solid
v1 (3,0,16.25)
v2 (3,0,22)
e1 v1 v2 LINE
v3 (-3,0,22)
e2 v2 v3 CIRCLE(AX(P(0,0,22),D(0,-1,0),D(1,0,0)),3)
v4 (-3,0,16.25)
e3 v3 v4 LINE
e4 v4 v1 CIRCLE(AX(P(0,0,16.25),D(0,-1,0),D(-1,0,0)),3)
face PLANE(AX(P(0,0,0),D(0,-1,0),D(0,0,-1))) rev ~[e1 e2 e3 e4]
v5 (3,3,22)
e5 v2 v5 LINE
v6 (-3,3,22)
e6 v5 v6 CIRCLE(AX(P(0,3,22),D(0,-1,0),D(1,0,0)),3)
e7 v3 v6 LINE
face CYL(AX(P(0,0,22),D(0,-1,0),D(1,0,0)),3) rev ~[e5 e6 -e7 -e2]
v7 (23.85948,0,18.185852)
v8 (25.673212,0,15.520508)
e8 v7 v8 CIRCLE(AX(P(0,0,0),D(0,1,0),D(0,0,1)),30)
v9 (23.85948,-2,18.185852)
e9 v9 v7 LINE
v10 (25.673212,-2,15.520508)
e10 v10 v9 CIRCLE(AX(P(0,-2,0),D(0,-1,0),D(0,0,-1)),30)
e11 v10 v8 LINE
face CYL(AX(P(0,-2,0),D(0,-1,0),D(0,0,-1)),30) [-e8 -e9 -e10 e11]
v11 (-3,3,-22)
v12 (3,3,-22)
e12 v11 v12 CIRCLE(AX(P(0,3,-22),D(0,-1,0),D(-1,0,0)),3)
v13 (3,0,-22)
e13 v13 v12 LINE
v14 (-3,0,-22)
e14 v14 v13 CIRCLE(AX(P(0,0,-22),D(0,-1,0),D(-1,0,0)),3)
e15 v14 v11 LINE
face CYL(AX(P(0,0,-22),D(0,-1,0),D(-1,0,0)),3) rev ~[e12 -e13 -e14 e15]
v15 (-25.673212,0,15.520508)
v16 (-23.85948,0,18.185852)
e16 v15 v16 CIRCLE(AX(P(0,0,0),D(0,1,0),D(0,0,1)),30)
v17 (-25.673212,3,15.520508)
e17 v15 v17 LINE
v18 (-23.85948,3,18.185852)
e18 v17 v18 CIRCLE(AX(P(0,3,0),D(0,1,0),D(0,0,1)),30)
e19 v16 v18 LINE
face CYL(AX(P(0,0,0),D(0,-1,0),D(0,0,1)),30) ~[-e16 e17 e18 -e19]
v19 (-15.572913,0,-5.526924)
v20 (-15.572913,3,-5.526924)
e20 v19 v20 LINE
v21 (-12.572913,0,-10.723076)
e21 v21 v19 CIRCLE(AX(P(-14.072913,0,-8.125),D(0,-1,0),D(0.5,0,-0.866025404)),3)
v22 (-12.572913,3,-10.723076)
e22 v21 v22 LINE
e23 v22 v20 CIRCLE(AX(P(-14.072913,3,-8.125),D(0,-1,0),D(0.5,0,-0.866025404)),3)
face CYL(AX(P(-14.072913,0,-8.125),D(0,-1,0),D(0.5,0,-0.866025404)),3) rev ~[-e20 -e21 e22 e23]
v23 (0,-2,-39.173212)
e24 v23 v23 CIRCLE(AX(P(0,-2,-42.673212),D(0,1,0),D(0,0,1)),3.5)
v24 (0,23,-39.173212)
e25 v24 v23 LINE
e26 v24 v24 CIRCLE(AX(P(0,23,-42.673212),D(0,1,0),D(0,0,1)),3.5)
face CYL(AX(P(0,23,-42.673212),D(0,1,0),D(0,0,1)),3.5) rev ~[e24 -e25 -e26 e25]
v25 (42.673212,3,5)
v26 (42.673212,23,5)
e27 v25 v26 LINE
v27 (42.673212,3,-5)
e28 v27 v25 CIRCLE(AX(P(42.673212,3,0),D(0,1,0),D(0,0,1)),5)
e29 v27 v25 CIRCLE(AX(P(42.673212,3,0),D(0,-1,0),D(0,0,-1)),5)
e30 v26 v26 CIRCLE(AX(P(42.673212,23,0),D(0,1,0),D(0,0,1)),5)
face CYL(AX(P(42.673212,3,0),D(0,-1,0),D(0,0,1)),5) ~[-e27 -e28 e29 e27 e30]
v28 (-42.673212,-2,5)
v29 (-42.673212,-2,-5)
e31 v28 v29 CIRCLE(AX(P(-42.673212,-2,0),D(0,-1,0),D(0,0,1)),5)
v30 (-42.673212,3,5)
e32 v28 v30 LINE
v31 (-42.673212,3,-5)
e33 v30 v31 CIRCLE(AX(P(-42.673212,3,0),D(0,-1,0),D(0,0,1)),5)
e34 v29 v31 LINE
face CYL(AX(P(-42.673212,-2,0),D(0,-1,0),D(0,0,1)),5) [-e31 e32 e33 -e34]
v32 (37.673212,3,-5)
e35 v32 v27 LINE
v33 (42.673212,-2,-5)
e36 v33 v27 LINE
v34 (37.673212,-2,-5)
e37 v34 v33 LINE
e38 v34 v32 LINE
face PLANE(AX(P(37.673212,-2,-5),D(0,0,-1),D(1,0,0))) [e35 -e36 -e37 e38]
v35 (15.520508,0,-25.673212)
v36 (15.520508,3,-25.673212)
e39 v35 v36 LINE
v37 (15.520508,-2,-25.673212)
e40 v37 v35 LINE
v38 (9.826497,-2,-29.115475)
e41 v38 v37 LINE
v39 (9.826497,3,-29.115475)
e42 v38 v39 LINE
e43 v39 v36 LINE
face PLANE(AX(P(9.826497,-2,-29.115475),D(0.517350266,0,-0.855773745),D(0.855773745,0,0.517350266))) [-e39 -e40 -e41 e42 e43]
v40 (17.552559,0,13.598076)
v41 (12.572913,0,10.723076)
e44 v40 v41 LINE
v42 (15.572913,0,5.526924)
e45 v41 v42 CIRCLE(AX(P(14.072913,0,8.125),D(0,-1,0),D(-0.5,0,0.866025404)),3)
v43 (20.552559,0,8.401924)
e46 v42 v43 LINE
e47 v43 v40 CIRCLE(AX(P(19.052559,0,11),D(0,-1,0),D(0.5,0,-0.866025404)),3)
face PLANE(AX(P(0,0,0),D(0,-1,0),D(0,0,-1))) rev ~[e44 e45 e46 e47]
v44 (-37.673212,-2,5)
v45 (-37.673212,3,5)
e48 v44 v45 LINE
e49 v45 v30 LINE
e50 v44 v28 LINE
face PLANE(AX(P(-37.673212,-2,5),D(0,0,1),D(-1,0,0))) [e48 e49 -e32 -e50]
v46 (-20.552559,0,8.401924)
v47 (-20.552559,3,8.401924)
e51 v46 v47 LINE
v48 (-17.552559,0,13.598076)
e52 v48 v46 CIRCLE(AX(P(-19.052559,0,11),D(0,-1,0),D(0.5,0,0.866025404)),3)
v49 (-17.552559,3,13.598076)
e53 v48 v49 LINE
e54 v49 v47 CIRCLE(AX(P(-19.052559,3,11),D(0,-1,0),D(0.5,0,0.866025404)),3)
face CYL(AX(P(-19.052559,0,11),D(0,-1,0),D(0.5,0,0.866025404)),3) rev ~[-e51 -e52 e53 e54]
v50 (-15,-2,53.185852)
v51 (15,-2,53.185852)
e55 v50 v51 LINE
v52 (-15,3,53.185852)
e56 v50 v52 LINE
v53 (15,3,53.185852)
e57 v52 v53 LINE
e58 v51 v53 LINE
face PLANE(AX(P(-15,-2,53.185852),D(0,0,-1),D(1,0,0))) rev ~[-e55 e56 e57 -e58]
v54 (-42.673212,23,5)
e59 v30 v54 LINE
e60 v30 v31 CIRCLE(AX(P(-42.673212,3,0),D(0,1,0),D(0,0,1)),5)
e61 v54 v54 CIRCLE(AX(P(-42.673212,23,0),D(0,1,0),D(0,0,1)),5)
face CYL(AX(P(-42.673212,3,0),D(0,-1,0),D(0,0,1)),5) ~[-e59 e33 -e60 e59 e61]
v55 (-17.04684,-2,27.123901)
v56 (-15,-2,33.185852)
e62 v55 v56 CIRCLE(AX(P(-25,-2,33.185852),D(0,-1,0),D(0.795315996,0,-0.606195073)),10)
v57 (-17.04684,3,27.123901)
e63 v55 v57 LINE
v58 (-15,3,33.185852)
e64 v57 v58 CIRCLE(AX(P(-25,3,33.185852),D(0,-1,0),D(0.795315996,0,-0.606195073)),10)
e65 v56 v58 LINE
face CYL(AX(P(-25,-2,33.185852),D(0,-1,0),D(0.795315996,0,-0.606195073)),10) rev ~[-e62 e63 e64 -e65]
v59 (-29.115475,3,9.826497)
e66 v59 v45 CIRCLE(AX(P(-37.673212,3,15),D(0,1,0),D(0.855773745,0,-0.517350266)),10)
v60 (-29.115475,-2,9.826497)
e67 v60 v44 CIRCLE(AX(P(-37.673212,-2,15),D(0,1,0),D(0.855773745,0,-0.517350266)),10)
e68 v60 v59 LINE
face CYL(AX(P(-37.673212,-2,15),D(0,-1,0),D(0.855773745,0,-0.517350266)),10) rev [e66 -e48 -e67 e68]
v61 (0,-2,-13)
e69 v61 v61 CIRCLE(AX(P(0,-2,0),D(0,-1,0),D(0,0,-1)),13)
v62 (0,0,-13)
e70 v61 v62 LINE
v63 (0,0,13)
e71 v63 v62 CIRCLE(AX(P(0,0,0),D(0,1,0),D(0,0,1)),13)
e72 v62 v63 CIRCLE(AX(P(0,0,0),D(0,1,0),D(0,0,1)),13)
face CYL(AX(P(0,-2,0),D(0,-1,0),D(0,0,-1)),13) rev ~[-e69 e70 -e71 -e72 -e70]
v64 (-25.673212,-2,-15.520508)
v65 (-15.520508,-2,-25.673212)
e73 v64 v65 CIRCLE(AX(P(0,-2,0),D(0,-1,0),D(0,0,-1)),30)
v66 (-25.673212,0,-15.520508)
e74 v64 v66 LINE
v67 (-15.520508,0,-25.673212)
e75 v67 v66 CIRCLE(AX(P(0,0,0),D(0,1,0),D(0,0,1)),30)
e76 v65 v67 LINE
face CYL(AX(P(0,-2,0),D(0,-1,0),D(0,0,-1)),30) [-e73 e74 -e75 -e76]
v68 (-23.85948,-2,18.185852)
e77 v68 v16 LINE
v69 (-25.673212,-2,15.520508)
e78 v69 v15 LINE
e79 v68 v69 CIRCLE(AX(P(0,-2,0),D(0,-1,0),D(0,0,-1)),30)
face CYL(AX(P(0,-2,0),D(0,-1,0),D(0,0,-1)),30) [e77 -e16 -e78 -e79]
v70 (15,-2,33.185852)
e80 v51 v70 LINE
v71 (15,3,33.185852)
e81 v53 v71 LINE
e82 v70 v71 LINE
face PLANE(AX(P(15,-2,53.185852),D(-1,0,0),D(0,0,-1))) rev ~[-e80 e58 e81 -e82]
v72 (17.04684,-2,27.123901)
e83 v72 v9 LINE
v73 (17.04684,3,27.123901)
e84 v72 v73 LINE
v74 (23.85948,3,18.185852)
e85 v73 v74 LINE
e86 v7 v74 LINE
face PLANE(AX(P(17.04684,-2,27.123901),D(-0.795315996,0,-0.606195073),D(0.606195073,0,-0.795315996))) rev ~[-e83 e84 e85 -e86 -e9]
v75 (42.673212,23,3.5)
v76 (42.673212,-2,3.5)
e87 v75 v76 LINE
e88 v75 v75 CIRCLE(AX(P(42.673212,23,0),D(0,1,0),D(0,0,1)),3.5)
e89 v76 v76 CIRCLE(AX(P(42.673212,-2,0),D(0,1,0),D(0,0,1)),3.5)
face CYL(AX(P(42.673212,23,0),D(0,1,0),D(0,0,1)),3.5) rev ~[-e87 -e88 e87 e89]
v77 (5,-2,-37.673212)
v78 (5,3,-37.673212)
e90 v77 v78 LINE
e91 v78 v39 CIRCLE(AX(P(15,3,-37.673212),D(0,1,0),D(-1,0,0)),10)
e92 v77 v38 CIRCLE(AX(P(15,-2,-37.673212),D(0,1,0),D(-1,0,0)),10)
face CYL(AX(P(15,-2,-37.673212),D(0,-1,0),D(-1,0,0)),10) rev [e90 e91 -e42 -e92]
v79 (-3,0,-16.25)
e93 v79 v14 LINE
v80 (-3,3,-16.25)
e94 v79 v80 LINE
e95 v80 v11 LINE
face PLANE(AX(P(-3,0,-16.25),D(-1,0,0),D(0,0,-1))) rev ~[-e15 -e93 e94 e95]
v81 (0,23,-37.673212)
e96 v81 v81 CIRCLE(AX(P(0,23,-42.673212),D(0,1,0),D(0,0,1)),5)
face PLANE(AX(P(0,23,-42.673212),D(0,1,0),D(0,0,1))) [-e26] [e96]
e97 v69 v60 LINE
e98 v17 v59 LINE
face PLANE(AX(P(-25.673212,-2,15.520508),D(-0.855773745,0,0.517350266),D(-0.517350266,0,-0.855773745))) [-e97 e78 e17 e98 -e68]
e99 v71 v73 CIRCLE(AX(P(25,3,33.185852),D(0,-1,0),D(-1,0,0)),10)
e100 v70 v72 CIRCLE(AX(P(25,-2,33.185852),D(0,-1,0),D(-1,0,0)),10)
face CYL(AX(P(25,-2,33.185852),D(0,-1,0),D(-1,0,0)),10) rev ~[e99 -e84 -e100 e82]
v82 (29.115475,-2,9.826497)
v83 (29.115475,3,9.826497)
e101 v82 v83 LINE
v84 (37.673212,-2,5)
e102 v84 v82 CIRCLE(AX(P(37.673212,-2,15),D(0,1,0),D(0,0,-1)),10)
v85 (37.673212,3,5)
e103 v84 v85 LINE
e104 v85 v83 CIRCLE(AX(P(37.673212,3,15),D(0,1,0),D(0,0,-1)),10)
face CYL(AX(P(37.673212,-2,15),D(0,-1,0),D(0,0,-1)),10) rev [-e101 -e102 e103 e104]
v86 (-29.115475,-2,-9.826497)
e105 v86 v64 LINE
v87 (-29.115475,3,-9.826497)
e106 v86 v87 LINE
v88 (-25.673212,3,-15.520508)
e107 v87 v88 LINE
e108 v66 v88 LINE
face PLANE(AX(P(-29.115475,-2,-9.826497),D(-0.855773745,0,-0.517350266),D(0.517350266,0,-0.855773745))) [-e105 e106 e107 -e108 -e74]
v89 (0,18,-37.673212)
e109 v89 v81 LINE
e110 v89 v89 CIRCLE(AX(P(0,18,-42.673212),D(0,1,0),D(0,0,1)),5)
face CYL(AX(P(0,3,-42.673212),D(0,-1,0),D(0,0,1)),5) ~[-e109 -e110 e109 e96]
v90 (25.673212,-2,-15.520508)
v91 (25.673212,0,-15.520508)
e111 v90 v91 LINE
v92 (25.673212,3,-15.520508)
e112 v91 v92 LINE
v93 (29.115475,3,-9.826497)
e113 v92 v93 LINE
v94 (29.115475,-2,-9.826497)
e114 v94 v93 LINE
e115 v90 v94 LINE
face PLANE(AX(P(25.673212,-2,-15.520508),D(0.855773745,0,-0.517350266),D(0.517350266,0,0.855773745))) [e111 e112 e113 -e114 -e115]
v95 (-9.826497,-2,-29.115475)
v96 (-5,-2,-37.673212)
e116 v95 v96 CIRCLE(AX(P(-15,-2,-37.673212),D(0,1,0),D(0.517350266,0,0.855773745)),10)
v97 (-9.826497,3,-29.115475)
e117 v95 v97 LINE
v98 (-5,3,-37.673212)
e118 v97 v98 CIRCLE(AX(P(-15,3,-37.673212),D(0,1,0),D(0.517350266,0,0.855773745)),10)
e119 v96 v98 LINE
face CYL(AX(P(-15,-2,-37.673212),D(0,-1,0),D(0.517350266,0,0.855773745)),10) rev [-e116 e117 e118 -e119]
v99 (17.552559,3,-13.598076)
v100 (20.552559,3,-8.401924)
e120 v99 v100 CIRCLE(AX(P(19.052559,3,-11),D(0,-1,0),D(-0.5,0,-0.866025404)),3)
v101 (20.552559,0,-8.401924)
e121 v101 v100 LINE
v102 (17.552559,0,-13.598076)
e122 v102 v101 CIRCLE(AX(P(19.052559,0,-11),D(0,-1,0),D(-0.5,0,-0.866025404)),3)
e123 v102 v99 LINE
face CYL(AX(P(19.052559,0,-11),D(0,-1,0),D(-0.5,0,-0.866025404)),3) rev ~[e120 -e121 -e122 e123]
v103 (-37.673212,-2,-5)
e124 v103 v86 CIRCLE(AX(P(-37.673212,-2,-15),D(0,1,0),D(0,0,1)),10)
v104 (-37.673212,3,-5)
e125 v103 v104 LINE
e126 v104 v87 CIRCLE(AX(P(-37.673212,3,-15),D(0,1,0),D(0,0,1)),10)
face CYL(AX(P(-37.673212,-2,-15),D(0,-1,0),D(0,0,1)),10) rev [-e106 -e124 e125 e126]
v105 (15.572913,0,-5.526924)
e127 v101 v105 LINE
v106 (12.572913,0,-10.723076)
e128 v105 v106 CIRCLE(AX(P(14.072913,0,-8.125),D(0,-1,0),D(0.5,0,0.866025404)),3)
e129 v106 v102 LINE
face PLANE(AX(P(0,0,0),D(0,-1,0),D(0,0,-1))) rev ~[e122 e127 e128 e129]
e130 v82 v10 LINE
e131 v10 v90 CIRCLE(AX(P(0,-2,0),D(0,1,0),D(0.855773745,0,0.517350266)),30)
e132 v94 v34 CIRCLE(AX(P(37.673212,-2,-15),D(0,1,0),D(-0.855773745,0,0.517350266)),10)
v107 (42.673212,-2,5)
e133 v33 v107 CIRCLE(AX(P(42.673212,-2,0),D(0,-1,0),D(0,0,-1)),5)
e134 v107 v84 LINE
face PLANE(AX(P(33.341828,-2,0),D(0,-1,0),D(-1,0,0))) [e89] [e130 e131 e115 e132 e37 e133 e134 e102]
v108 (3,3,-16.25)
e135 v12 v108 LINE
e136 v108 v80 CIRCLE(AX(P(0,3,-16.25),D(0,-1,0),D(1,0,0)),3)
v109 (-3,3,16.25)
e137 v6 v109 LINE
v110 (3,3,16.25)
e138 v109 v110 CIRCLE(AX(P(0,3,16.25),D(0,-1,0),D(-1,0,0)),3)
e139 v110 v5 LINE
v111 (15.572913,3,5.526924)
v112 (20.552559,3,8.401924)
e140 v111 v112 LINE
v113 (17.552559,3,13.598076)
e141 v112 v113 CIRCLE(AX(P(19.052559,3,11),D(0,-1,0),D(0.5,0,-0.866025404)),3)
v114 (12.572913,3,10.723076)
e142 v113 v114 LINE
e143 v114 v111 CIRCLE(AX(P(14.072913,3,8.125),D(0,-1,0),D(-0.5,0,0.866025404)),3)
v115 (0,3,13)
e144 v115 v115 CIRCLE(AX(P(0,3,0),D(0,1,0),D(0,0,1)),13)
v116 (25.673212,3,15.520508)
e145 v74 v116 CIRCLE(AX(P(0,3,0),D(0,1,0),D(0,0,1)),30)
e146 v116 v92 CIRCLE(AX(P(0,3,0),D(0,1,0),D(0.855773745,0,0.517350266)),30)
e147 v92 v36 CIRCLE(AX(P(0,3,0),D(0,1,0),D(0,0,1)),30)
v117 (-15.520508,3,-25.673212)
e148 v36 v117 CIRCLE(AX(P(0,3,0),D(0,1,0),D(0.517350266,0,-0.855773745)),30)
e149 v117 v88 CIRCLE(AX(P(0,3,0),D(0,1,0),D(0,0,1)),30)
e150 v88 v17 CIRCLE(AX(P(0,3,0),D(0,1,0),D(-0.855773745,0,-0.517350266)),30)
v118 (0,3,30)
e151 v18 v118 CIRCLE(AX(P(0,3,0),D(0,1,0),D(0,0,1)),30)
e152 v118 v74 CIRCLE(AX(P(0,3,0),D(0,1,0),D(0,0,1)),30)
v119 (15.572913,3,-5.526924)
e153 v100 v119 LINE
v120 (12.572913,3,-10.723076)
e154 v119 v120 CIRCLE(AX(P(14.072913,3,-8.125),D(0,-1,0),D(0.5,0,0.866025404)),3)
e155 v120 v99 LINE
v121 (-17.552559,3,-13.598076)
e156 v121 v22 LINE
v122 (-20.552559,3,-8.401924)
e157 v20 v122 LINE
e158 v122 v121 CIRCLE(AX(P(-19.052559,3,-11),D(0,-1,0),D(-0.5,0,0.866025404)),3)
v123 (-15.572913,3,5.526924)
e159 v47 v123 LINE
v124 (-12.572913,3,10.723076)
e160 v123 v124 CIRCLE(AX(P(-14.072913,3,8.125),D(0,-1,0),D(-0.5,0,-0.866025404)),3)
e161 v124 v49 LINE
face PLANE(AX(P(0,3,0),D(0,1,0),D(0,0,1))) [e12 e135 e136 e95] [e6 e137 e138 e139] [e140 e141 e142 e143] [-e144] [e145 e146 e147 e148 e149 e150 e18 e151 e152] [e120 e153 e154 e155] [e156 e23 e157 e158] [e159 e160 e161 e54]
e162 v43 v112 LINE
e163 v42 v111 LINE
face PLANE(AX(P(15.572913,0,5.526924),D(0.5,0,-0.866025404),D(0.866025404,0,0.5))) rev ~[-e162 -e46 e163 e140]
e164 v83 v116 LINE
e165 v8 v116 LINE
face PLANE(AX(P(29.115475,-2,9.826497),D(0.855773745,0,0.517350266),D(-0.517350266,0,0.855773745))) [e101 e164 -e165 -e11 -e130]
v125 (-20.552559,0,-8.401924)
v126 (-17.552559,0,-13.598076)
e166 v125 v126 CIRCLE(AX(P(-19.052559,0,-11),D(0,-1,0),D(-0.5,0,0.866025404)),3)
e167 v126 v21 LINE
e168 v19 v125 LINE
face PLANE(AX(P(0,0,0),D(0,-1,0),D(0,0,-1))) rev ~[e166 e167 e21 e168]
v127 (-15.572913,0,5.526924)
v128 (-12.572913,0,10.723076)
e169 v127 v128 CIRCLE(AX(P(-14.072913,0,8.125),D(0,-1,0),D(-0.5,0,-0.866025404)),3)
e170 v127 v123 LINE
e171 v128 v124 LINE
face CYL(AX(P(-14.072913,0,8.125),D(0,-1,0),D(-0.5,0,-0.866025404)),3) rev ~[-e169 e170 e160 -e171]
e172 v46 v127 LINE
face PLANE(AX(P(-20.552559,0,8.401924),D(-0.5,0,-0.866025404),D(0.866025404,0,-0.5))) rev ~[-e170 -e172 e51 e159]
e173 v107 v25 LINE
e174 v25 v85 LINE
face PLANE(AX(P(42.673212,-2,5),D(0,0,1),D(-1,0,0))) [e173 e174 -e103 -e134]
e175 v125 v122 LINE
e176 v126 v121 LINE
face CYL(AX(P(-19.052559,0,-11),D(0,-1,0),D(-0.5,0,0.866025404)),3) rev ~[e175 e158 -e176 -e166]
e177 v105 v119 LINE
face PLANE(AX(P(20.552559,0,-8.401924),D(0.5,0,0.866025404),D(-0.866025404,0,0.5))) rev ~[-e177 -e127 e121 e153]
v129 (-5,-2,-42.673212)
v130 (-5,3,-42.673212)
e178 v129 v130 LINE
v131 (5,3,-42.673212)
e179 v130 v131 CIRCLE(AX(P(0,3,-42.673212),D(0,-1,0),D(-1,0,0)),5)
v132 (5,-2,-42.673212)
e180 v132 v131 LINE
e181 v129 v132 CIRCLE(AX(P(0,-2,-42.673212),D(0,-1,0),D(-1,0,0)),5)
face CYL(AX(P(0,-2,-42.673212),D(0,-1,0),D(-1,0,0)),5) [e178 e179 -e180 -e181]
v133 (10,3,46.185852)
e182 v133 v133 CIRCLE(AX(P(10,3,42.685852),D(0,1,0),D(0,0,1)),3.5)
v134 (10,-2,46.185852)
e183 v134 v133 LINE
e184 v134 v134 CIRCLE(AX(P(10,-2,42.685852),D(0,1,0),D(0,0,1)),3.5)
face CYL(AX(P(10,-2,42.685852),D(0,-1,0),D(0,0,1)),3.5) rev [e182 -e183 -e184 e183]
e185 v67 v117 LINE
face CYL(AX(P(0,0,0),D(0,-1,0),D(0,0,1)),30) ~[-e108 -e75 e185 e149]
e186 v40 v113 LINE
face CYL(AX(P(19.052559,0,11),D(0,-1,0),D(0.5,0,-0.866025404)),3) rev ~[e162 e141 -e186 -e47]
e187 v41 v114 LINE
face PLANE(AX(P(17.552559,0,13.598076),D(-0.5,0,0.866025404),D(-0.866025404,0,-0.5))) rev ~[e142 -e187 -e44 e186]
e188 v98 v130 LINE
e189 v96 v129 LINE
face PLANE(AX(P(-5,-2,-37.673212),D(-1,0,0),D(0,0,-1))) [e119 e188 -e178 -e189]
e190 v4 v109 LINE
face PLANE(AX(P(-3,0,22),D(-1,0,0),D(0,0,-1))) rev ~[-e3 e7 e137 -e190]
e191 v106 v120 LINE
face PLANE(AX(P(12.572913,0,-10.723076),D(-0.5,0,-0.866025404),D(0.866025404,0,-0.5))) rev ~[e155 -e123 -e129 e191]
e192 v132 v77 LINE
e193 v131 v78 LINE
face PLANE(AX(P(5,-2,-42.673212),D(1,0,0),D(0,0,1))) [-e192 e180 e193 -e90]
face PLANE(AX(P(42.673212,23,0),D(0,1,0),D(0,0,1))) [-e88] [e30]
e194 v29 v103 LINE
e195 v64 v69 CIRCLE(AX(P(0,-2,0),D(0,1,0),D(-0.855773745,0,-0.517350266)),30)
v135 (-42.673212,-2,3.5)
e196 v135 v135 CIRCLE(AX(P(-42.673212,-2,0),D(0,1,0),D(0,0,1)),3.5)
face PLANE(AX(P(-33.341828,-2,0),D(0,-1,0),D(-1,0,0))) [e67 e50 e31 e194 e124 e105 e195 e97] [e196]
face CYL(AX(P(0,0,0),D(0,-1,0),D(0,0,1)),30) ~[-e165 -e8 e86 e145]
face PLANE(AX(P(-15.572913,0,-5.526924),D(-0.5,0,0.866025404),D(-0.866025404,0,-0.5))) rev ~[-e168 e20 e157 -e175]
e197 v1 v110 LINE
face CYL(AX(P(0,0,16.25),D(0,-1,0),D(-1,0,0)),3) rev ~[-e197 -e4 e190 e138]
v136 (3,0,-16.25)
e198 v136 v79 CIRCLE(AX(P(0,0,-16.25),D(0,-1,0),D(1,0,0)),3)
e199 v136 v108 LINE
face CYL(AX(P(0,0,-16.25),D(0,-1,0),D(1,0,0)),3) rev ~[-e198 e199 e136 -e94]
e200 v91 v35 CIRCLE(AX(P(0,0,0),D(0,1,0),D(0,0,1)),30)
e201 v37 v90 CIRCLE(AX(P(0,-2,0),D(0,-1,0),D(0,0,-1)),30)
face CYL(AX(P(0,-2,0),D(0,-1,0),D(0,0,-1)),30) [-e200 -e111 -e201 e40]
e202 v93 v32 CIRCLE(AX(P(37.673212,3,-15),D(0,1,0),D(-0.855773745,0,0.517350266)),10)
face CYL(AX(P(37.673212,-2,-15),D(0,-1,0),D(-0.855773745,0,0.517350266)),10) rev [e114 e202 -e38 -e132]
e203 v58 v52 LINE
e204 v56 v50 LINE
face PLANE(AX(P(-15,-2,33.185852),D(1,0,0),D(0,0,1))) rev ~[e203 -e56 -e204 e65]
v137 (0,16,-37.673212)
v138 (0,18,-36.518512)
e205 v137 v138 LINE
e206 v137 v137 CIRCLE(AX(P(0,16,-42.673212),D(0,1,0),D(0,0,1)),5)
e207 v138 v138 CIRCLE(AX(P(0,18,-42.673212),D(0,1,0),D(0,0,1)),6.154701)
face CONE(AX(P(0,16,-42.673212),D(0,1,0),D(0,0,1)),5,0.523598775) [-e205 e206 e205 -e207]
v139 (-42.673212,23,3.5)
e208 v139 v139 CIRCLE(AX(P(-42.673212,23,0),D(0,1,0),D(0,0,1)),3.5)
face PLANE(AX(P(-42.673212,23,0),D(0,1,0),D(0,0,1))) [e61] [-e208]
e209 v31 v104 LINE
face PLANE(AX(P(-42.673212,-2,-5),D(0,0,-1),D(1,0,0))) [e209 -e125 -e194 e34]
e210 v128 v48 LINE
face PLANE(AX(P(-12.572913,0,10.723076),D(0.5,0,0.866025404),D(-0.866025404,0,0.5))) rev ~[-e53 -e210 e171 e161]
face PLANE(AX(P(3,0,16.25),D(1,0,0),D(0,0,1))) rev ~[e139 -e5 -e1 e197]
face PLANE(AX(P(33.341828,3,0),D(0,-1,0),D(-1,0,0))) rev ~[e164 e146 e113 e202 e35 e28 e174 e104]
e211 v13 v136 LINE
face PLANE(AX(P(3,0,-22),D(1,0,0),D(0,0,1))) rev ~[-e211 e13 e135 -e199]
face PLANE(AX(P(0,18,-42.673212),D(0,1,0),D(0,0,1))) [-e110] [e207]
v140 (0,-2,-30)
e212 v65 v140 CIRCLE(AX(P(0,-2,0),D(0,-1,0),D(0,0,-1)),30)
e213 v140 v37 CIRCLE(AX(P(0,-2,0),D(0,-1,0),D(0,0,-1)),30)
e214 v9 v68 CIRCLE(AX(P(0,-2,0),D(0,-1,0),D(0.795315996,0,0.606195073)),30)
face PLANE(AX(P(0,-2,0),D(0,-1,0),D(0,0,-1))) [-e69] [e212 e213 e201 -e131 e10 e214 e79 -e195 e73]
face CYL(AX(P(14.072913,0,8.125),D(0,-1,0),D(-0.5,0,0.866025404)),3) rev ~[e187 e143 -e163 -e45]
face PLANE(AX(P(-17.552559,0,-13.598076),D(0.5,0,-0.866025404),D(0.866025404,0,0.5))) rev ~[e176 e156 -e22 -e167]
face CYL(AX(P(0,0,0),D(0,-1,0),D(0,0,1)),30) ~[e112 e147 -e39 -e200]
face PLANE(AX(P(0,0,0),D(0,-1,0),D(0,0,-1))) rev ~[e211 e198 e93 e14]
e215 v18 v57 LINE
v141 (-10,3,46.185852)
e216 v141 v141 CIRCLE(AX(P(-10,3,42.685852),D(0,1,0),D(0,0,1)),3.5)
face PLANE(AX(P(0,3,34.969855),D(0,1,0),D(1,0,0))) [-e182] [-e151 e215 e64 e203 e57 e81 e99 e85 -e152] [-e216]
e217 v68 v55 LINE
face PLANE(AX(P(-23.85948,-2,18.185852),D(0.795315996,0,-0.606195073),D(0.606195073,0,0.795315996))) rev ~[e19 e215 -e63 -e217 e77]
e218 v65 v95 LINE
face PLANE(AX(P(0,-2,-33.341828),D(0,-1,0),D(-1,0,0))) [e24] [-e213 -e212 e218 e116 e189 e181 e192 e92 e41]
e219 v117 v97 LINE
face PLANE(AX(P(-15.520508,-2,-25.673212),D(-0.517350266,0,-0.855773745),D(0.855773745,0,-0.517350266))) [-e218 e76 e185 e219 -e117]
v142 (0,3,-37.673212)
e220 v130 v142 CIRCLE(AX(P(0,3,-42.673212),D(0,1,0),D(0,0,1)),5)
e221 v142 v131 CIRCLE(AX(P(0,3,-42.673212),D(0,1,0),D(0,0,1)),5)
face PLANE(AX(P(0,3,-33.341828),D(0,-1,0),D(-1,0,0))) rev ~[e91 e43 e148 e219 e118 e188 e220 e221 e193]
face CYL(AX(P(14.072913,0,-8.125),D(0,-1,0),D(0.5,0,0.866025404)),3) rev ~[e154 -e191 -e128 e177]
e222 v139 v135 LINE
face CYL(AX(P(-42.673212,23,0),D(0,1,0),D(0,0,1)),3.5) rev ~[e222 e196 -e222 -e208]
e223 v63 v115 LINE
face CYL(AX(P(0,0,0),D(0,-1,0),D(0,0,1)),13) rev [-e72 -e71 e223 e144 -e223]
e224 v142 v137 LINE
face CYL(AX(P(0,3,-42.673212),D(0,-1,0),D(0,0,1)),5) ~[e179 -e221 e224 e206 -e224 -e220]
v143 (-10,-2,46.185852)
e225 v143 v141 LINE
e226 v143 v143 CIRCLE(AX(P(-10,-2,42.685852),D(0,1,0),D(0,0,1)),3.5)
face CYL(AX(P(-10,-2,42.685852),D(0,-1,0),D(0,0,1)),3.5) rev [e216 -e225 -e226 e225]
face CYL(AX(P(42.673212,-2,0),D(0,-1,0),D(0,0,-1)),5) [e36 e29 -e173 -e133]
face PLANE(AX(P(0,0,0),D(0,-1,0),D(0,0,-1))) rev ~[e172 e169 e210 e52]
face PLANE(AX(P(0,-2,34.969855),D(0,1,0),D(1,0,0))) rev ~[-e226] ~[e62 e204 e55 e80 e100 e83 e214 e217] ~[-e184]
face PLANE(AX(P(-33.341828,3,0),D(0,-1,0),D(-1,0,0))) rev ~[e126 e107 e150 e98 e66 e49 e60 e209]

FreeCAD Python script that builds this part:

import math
import FreeCAD as App
import Part
import Sketcher
Q = App.Units.Quantity

doc = App.newDocument("Part")
body = doc.addObject("PartDesign::Body", "Body")

sketch1 = doc.addObject("Sketcher::SketchObject", "Sketch")
body.addObject(sketch1)
sketch1.AttachmentSupport = (doc.XZ_Plane, [""])
sketch1.MapMode = "FlatFace"
sketch1.addGeometry(Part.Circle(App.Vector(0, 0, 0), App.Vector(0, 0, 1), 30), False)
sketch1.addGeometry(Part.ArcOfCircle(Part.Circle(App.Vector(-14.1, -8.1, 0), App.Vector(0, 0, 1), 3), math.radians(-60), math.radians(120)), False)
sketch1.addGeometry(Part.LineSegment(App.Vector(-15.6, -5.5, 0), App.Vector(-20.6, -8.4, 0)), False)
sketch1.addGeometry(Part.ArcOfCircle(Part.Circle(App.Vector(-19.1, -11, 0), App.Vector(0, 0, 1), 3), math.radians(120), math.radians(300)), False)
sketch1.addGeometry(Part.LineSegment(App.Vector(-17.6, -13.6, 0), App.Vector(-12.6, -10.7, 0)), False)
sketch1.addGeometry(Part.ArcOfCircle(Part.Circle(App.Vector(0, -16.2, 0), App.Vector(0, 0, 1), 3), math.radians(0), math.radians(180)), False)
sketch1.addGeometry(Part.LineSegment(App.Vector(-3, -16.2, 0), App.Vector(-3, -22, 0)), False)
sketch1.addGeometry(Part.ArcOfCircle(Part.Circle(App.Vector(0, -22, 0), App.Vector(0, 0, 1), 3), math.radians(180), math.radians(360)), False)
sketch1.addGeometry(Part.LineSegment(App.Vector(3, -22, 0), App.Vector(3, -16.2, 0)), False)
sketch1.addGeometry(Part.ArcOfCircle(Part.Circle(App.Vector(-14.1, 8.1, 0), App.Vector(0, 0, 1), 3), math.radians(-120), math.radians(60)), False)
sketch1.addGeometry(Part.LineSegment(App.Vector(-12.6, 10.7, 0), App.Vector(-17.6, 13.6, 0)), False)
sketch1.addGeometry(Part.ArcOfCircle(Part.Circle(App.Vector(-19.1, 11, 0), App.Vector(0, 0, 1), 3), math.radians(60), math.radians(240)), False)
sketch1.addGeometry(Part.LineSegment(App.Vector(-20.6, 8.4, 0), App.Vector(-15.6, 5.5, 0)), False)
sketch1.addGeometry(Part.ArcOfCircle(Part.Circle(App.Vector(14.1, -8.1, 0), App.Vector(0, 0, 1), 3), math.radians(60), math.radians(240)), False)
sketch1.addGeometry(Part.LineSegment(App.Vector(12.6, -10.7, 0), App.Vector(17.6, -13.6, 0)), False)
sketch1.addGeometry(Part.ArcOfCircle(Part.Circle(App.Vector(19.1, -11, 0), App.Vector(0, 0, 1), 3), math.radians(-120), math.radians(60)), False)
sketch1.addGeometry(Part.LineSegment(App.Vector(20.6, -8.4, 0), App.Vector(15.6, -5.5, 0)), False)
sketch1.addGeometry(Part.Circle(App.Vector(0, 0, 0), App.Vector(0, 0, 1), 13), False)
sketch1.addGeometry(Part.ArcOfCircle(Part.Circle(App.Vector(0, 16.2, 0), App.Vector(0, 0, 1), 3), math.radians(180), math.radians(360)), False)
sketch1.addGeometry(Part.LineSegment(App.Vector(3, 16.2, 0), App.Vector(3, 22, 0)), False)
sketch1.addGeometry(Part.ArcOfCircle(Part.Circle(App.Vector(0, 22, 0), App.Vector(0, 0, 1), 3), math.radians(0), math.radians(180)), False)
sketch1.addGeometry(Part.LineSegment(App.Vector(-3, 22, 0), App.Vector(-3, 16.2, 0)), False)
sketch1.addGeometry(Part.ArcOfCircle(Part.Circle(App.Vector(14.1, 8.1, 0), App.Vector(0, 0, 1), 3), math.radians(120), math.radians(300)), False)
sketch1.addGeometry(Part.LineSegment(App.Vector(15.6, 5.5, 0), App.Vector(20.6, 8.4, 0)), False)
sketch1.addGeometry(Part.ArcOfCircle(Part.Circle(App.Vector(19.1, 11, 0), App.Vector(0, 0, 1), 3), math.radians(-60), math.radians(120)), False)
sketch1.addGeometry(Part.LineSegment(App.Vector(17.6, 13.6, 0), App.Vector(12.6, 10.7, 0)), False)
sketch1.addConstraint(Sketcher.Constraint("Tangent", 1, 2, 2, 1))
sketch1.addConstraint(Sketcher.Constraint("Tangent", 2, 2, 3, 1))
sketch1.addConstraint(Sketcher.Constraint("Tangent", 3, 2, 4, 1))
sketch1.addConstraint(Sketcher.Constraint("Tangent", 4, 2, 1, 1))
sketch1.addConstraint(Sketcher.Constraint("Tangent", 5, 2, 6, 1))
sketch1.addConstraint(Sketcher.Constraint("Tangent", 6, 2, 7, 1))
sketch1.addConstraint(Sketcher.Constraint("Tangent", 7, 2, 8, 1))
sketch1.addConstraint(Sketcher.Constraint("Tangent", 8, 2, 5, 1))
sketch1.addConstraint(Sketcher.Constraint("Tangent", 9, 2, 10, 1))
sketch1.addConstraint(Sketcher.Constraint("Tangent", 10, 2, 11, 1))
sketch1.addConstraint(Sketcher.Constraint("Tangent", 11, 2, 12, 1))
sketch1.addConstraint(Sketcher.Constraint("Tangent", 12, 2, 9, 1))
sketch1.addConstraint(Sketcher.Constraint("Tangent", 13, 2, 14, 1))
sketch1.addConstraint(Sketcher.Constraint("Tangent", 14, 2, 15, 1))
sketch1.addConstraint(Sketcher.Constraint("Tangent", 15, 2, 16, 1))
sketch1.addConstraint(Sketcher.Constraint("Tangent", 16, 2, 13, 1))
sketch1.addConstraint(Sketcher.Constraint("Tangent", 18, 2, 19, 1))
sketch1.addConstraint(Sketcher.Constraint("Tangent", 19, 2, 20, 1))
sketch1.addConstraint(Sketcher.Constraint("Tangent", 20, 2, 21, 1))
sketch1.addConstraint(Sketcher.Constraint("Tangent", 21, 2, 18, 1))
sketch1.addConstraint(Sketcher.Constraint("Tangent", 22, 2, 23, 1))
sketch1.addConstraint(Sketcher.Constraint("Tangent", 23, 2, 24, 1))
sketch1.addConstraint(Sketcher.Constraint("Tangent", 24, 2, 25, 1))
sketch1.addConstraint(Sketcher.Constraint("Tangent", 25, 2, 22, 1))
sketch1.addConstraint(Sketcher.Constraint("Vertical", 6))
sketch1.addConstraint(Sketcher.Constraint("Vertical", 8))
sketch1.addConstraint(Sketcher.Constraint("Vertical", 19))
sketch1.addConstraint(Sketcher.Constraint("Vertical", 21))
sketch1.addConstraint(Sketcher.Constraint("Coincident", 0, 3, -1, 1))
sketch1.addConstraint(Sketcher.Constraint("Coincident", 17, 3, -1, 1))
sketch1.addConstraint(Sketcher.Constraint("Equal", 1, 3))
sketch1.addConstraint(Sketcher.Constraint("Equal", 3, 5))
sketch1.addConstraint(Sketcher.Constraint("Equal", 7, 9))
sketch1.addConstraint(Sketcher.Constraint("Equal", 9, 11))
sketch1.addConstraint(Sketcher.Constraint("Equal", 11, 13))
sketch1.addConstraint(Sketcher.Constraint("Equal", 13, 15))
sketch1.addConstraint(Sketcher.Constraint("Equal", 15, 18))
sketch1.addConstraint(Sketcher.Constraint("Equal", 20, 22))
sketch1.addConstraint(Sketcher.Constraint("Equal", 22, 24))
sketch1.addConstraint(Sketcher.Constraint("Symmetric", 9, 3, 13, 3, -1, 1))
sketch1.addConstraint(Sketcher.Constraint("Symmetric", 11, 3, 15, 3, -1, 1))
sketch1.addConstraint(Sketcher.Constraint("Symmetric", 5, 3, 18, 3, -1, 1))
sketch1.addConstraint(Sketcher.Constraint("Symmetric", 1, 3, 22, 3, -1, 1))
sketch1.addConstraint(Sketcher.Constraint("Symmetric", 3, 3, 24, 3, -1, 1))
sketch1.addConstraint(Sketcher.Constraint("Symmetric", 1, 3, 13, 3, -2))
sketch1.addConstraint(Sketcher.Constraint("Symmetric", 3, 3, 15, 3, -2))
sketch1.addConstraint(Sketcher.Constraint("Symmetric", 7, 3, 20, 3, -1))
sketch1.addConstraint(Sketcher.Constraint("Diameter", 0, Q("60 mm")))
sketch1.addConstraint(Sketcher.Constraint("Diameter", 17, Q("26 mm")))
sketch1.addConstraint(Sketcher.Constraint("Radius", 1, Q("3 mm")))
sketch1.addConstraint(Sketcher.Constraint("Angle", 2, Q("-150 deg")))
sketch1.addConstraint(Sketcher.Constraint("DistanceY", 3, 3, -1, 1, Q("11 mm")))
sketch1.addConstraint(Sketcher.Constraint("DistanceY", 7, 3, -1, 1, Q("22 mm")))
sketch1.addConstraint(Sketcher.Constraint("DistanceY", 6, 2, 6, 1, Q("5.75 mm")))
sketch1.addConstraint(Sketcher.Constraint("Distance", 2, Q("5.75 mm")))
sketch1.addConstraint(Sketcher.Constraint("DistanceX", 3, 3, -1, 1, Q("19.052559 mm")))
pad1 = doc.addObject("PartDesign::Pad", "Pad")
body.addObject(pad1)
pad1.Profile = sketch1
pad1.Length = 3
pad1.Reversed = True

sketch2 = doc.addObject("Sketcher::SketchObject", "Sketch001")
body.addObject(sketch2)
sketch2.AttachmentSupport = (doc.XZ_Plane, [""])
sketch2.MapMode = "FlatFace"
sketch2.AttachmentOffset = App.Placement(App.Vector(0, 0, 2), App.Rotation())
sketch2.addGeometry(Part.Circle(App.Vector(0, 0, 0), App.Vector(0, 0, 1), 30), False)
sketch2.addGeometry(Part.Circle(App.Vector(0, 0, 0), App.Vector(0, 0, 1), 13), False)
sketch2.addConstraint(Sketcher.Constraint("Coincident", 0, 3, -1, 1))
sketch2.addConstraint(Sketcher.Constraint("Coincident", 1, 3, -1, 1))
sketch2.addConstraint(Sketcher.Constraint("Diameter", 0, Q("60 mm")))
sketch2.addConstraint(Sketcher.Constraint("Diameter", 1, Q("26 mm")))
pad2 = doc.addObject("PartDesign::Pad", "Pad001")
body.addObject(pad2)
pad2.Profile = sketch2
pad2.Length = 2
pad2.Reversed = True

sketch3 = doc.addObject("Sketcher::SketchObject", "Sketch002")
body.addObject(sketch3)
sketch3.AttachmentSupport = (doc.XZ_Plane, [""])
sketch3.MapMode = "FlatFace"
sketch3.AttachmentOffset = App.Placement(App.Vector(0, 0, 2), App.Rotation())
sketch3.addGeometry(Part.LineSegment(App.Vector(-15, 33.2, 0), App.Vector(-15, 53.2, 0)), False)
sketch3.addGeometry(Part.LineSegment(App.Vector(-15, 53.2, 0), App.Vector(15, 53.2, 0)), False)
sketch3.addGeometry(Part.LineSegment(App.Vector(15, 53.2, 0), App.Vector(15, 33.2, 0)), False)
sketch3.addGeometry(Part.ArcOfCircle(Part.Circle(App.Vector(25, 33.2, 0), App.Vector(0, 0, 1), 10), math.radians(180), math.radians(217)), False)
sketch3.addGeometry(Part.LineSegment(App.Vector(17, 27.1, 0), App.Vector(23.9, 18.2, 0)), False)
sketch3.addGeometry(Part.ArcOfCircle(Part.Circle(App.Vector(0, 0, 0), App.Vector(0, 0, 1), 30), math.radians(37), math.radians(143)), False)
sketch3.addGeometry(Part.LineSegment(App.Vector(-23.9, 18.2, 0), App.Vector(-17, 27.1, 0)), False)
sketch3.addGeometry(Part.ArcOfCircle(Part.Circle(App.Vector(-25, 33.2, 0), App.Vector(0, 0, 1), 10), math.radians(-37), math.radians(0)), False)
sketch3.addGeometry(Part.Circle(App.Vector(-10, 42.7, 0), App.Vector(0, 0, 1), 3.5), False)
sketch3.addGeometry(Part.Circle(App.Vector(10, 42.7, 0), App.Vector(0, 0, 1), 3.5), False)
sketch3.addGeometry(Part.LineSegment(App.Vector(42.7, -5, 0), App.Vector(37.7, -5, 0)), False)
sketch3.addGeometry(Part.ArcOfCircle(Part.Circle(App.Vector(37.7, -15, 0), App.Vector(0, 0, 1), 10), math.radians(90), math.radians(149)), False)
sketch3.addGeometry(Part.LineSegment(App.Vector(29.1, -9.8, 0), App.Vector(25.7, -15.5, 0)), False)
sketch3.addGeometry(Part.ArcOfCircle(Part.Circle(App.Vector(0, 0, 0), App.Vector(0, 0, 1), 30), math.radians(-31), math.radians(31)), False)
sketch3.addGeometry(Part.LineSegment(App.Vector(25.7, 15.5, 0), App.Vector(29.1, 9.8, 0)), False)
sketch3.addGeometry(Part.ArcOfCircle(Part.Circle(App.Vector(37.7, 15, 0), App.Vector(0, 0, 1), 10), math.radians(-149), math.radians(-90)), False)
sketch3.addGeometry(Part.LineSegment(App.Vector(37.7, 5, 0), App.Vector(42.7, 5, 0)), False)
sketch3.addGeometry(Part.ArcOfCircle(Part.Circle(App.Vector(42.7, 0, 0), App.Vector(0, 0, 1), 5), math.radians(-90), math.radians(90)), False)
sketch3.addGeometry(Part.LineSegment(App.Vector(-5, -42.7, 0), App.Vector(-5, -37.7, 0)), False)
sketch3.addGeometry(Part.ArcOfCircle(Part.Circle(App.Vector(-15, -37.7, 0), App.Vector(0, 0, 1), 10), math.radians(0), math.radians(59)), False)
sketch3.addGeometry(Part.LineSegment(App.Vector(-9.8, -29.1, 0), App.Vector(-15.5, -25.7, 0)), False)
sketch3.addGeometry(Part.ArcOfCircle(Part.Circle(App.Vector(0, 0, 0), App.Vector(0, 0, 1), 30), math.radians(-121), math.radians(-59)), False)
sketch3.addGeometry(Part.LineSegment(App.Vector(15.5, -25.7, 0), App.Vector(9.8, -29.1, 0)), False)
sketch3.addGeometry(Part.ArcOfCircle(Part.Circle(App.Vector(15, -37.7, 0), App.Vector(0, 0, 1), 10), math.radians(121), math.radians(180)), False)
sketch3.addGeometry(Part.LineSegment(App.Vector(5, -37.7, 0), App.Vector(5, -42.7, 0)), False)
sketch3.addGeometry(Part.ArcOfCircle(Part.Circle(App.Vector(0, -42.7, 0), App.Vector(0, 0, 1), 5), math.radians(180), math.radians(360)), False)
sketch3.addGeometry(Part.LineSegment(App.Vector(-42.7, 5, 0), App.Vector(-37.7, 5, 0)), False)
sketch3.addGeometry(Part.ArcOfCircle(Part.Circle(App.Vector(-37.7, 15, 0), App.Vector(0, 0, 1), 10), math.radians(-90), math.radians(-31)), False)
sketch3.addGeometry(Part.LineSegment(App.Vector(-29.1, 9.8, 0), App.Vector(-25.7, 15.5, 0)), False)
sketch3.addGeometry(Part.ArcOfCircle(Part.Circle(App.Vector(0, 0, 0), App.Vector(0, 0, 1), 30), math.radians(149), math.radians(211)), False)
sketch3.addGeometry(Part.LineSegment(App.Vector(-25.7, -15.5, 0), App.Vector(-29.1, -9.8, 0)), False)
sketch3.addGeometry(Part.ArcOfCircle(Part.Circle(App.Vector(-37.7, -15, 0), App.Vector(0, 0, 1), 10), math.radians(31), math.radians(90)), False)
sketch3.addGeometry(Part.LineSegment(App.Vector(-37.7, -5, 0), App.Vector(-42.7, -5, 0)), False)
sketch3.addGeometry(Part.ArcOfCircle(Part.Circle(App.Vector(-42.7, 0, 0), App.Vector(0, 0, 1), 5), math.radians(90), math.radians(270)), False)
sketch3.addConstraint(Sketcher.Constraint("Coincident", 0, 2, 1, 1))
sketch3.addConstraint(Sketcher.Constraint("Coincident", 1, 2, 2, 1))
sketch3.addConstraint(Sketcher.Constraint("Tangent", 2, 2, 3, 1))
sketch3.addConstraint(Sketcher.Constraint("Tangent", 3, 2, 4, 1))
sketch3.addConstraint(Sketcher.Constraint("Tangent", 4, 2, 5, 1))
sketch3.addConstraint(Sketcher.Constraint("Tangent", 5, 2, 6, 1))
sketch3.addConstraint(Sketcher.Constraint("Tangent", 6, 2, 7, 1))
sketch3.addConstraint(Sketcher.Constraint("Tangent", 7, 2, 0, 1))
sketch3.addConstraint(Sketcher.Constraint("Tangent", 10, 2, 11, 1))
sketch3.addConstraint(Sketcher.Constraint("Tangent", 11, 2, 12, 1))
sketch3.addConstraint(Sketcher.Constraint("Tangent", 12, 2, 13, 1))
sketch3.addConstraint(Sketcher.Constraint("Tangent", 13, 2, 14, 1))
sketch3.addConstraint(Sketcher.Constraint("Tangent", 14, 2, 15, 1))
sketch3.addConstraint(Sketcher.Constraint("Tangent", 15, 2, 16, 1))
sketch3.addConstraint(Sketcher.Constraint("Tangent", 16, 2, 17, 2))
sketch3.addConstraint(Sketcher.Constraint("Tangent", 17, 1, 10, 1))
sketch3.addConstraint(Sketcher.Constraint("Tangent", 18, 2, 19, 1))
sketch3.addConstraint(Sketcher.Constraint("Tangent", 19, 2, 20, 1))
sketch3.addConstraint(Sketcher.Constraint("Tangent", 20, 2, 21, 1))
sketch3.addConstraint(Sketcher.Constraint("Tangent", 21, 2, 22, 1))
sketch3.addConstraint(Sketcher.Constraint("Tangent", 22, 2, 23, 1))
sketch3.addConstraint(Sketcher.Constraint("Tangent", 23, 2, 24, 1))
sketch3.addConstraint(Sketcher.Constraint("Tangent", 24, 2, 25, 2))
sketch3.addConstraint(Sketcher.Constraint("Tangent", 25, 1, 18, 1))
sketch3.addConstraint(Sketcher.Constraint("Tangent", 26, 2, 27, 1))
sketch3.addConstraint(Sketcher.Constraint("Tangent", 27, 2, 28, 1))
sketch3.addConstraint(Sketcher.Constraint("Tangent", 28, 2, 29, 1))
sketch3.addConstraint(Sketcher.Constraint("Tangent", 29, 2, 30, 1))
sketch3.addConstraint(Sketcher.Constraint("Tangent", 30, 2, 31, 1))
sketch3.addConstraint(Sketcher.Constraint("Tangent", 31, 2, 32, 1))
sketch3.addConstraint(Sketcher.Constraint("Tangent", 32, 2, 33, 2))
sketch3.addConstraint(Sketcher.Constraint("Tangent", 33, 1, 26, 1))
sketch3.addConstraint(Sketcher.Constraint("Vertical", 0))
sketch3.addConstraint(Sketcher.Constraint("Horizontal", 1))
sketch3.addConstraint(Sketcher.Constraint("Vertical", 2))
sketch3.addConstraint(Sketcher.Constraint("Horizontal", 10))
sketch3.addConstraint(Sketcher.Constraint("Horizontal", 16))
sketch3.addConstraint(Sketcher.Constraint("Vertical", 18))
sketch3.addConstraint(Sketcher.Constraint("Vertical", 24))
sketch3.addConstraint(Sketcher.Constraint("Horizontal", 26))
sketch3.addConstraint(Sketcher.Constraint("Horizontal", 32))
sketch3.addConstraint(Sketcher.Constraint("Coincident", 5, 3, -1, 1))
sketch3.addConstraint(Sketcher.Constraint("Coincident", 13, 3, -1, 1))
sketch3.addConstraint(Sketcher.Constraint("Coincident", 21, 3, -1, 1))
sketch3.addConstraint(Sketcher.Constraint("Coincident", 29, 3, -1, 1))
sketch3.addConstraint(Sketcher.Constraint("Equal", 3, 7))
sketch3.addConstraint(Sketcher.Constraint("Equal", 8, 9))
sketch3.addConstraint(Sketcher.Constraint("Equal", 7, 11))
sketch3.addConstraint(Sketcher.Constraint("Equal", 5, 13))
sketch3.addConstraint(Sketcher.Constraint("Equal", 11, 15))
sketch3.addConstraint(Sketcher.Constraint("Equal", 15, 19))
sketch3.addConstraint(Sketcher.Constraint("Equal", 13, 21))
sketch3.addConstraint(Sketcher.Constraint("Equal", 19, 23))
sketch3.addConstraint(Sketcher.Constraint("Equal", 17, 25))
sketch3.addConstraint(Sketcher.Constraint("Equal", 23, 27))
sketch3.addConstraint(Sketcher.Constraint("Equal", 21, 29))
sketch3.addConstraint(Sketcher.Constraint("Equal", 27, 31))
sketch3.addConstraint(Sketcher.Constraint("Equal", 25, 33))
sketch3.addConstraint(Sketcher.Constraint("Symmetric", 11, 3, 27, 3, -1, 1))
sketch3.addConstraint(Sketcher.Constraint("Symmetric", 3, 3, 7, 3, -2))
sketch3.addConstraint(Sketcher.Constraint("Symmetric", 8, 3, 9, 3, -2))
sketch3.addConstraint(Sketcher.Constraint("Symmetric", 19, 3, 23, 3, -2))
sketch3.addConstraint(Sketcher.Constraint("Symmetric", 15, 3, 27, 3, -2))
sketch3.addConstraint(Sketcher.Constraint("Perpendicular", 12, 20))
sketch3.addConstraint(Sketcher.Constraint("Perpendicular", 22, 30))
sketch3.addConstraint(Sketcher.Constraint("Vertical", 19, 3, 0, 2))
sketch3.addConstraint(Sketcher.Constraint("Equal", 16, 26))
sketch3.addConstraint(Sketcher.Constraint("Equal", 32, 18))
sketch3.addConstraint(Sketcher.Constraint("Diameter", 8, Q("7 mm")))
sketch3.addConstraint(Sketcher.Constraint("Radius", 3, Q("10 mm")))
sketch3.addConstraint(Sketcher.Constraint("Radius", 5, Q("30 mm")))
sketch3.addConstraint(Sketcher.Constraint("Radius", 17, Q("5 mm")))
sketch3.addConstraint(Sketcher.Constraint("DistanceX", 10, 2, 10, 1, Q("5 mm")))
sketch3.addConstraint(Sketcher.Constraint("DistanceY", 0, 1, 0, 2, Q("20 mm")))
sketch3.addConstraint(Sketcher.Constraint("DistanceX", 8, 3, -1, 1, Q("10 mm")))
sketch3.addConstraint(Sketcher.Constraint("DistanceY", 4, 2, 3, 3, Q("15 mm")))
sketch3.addConstraint(Sketcher.Constraint("DistanceX", 12, 2, 11, 3, Q("12 mm")))
sketch3.addConstraint(Sketcher.Constraint("DistanceY", 7, 3, 8, 3, Q("9.5 mm")))
pad3 = doc.addObject("PartDesign::Pad", "Pad002")
body.addObject(pad3)
pad3.Profile = sketch3
pad3.Length = 5
pad3.Reversed = True

sketch4 = doc.addObject("Sketcher::SketchObject", "Sketch003")
body.addObject(sketch4)
sketch4.AttachmentSupport = (doc.XZ_Plane, [""])
sketch4.MapMode = "FlatFace"
sketch4.AttachmentOffset = App.Placement(App.Vector(0, 0, -3), App.Rotation())
sketch4.addGeometry(Part.Circle(App.Vector(-43, 0, 0), App.Vector(0, 0, 1), 5), False)
sketch4.addGeometry(Part.Circle(App.Vector(43, 0, 0), App.Vector(0, 0, 1), 5), False)
sketch4.addGeometry(Part.Circle(App.Vector(0, -43, 0), App.Vector(0, 0, 1), 5), False)
sketch4.addConstraint(Sketcher.Constraint("Equal", 0, 1))
sketch4.addConstraint(Sketcher.Constraint("Equal", 1, 2))
sketch4.addConstraint(Sketcher.Constraint("Symmetric", 0, 3, 1, 3, -1, 1))
sketch4.addConstraint(Sketcher.Constraint("PointOnObject", 0, 3, -1))
sketch4.addConstraint(Sketcher.Constraint("PointOnObject", 2, 3, -2))
sketch4.addConstraint(Sketcher.Constraint("Diameter", 0, Q("10 mm")))
sketch4.addConstraint(Sketcher.Constraint("DistanceX", 0, 3, -1, 1, Q("42.673212 mm")))
sketch4.addConstraint(Sketcher.Constraint("DistanceY", 2, 3, -1, 1, Q("42.673212 mm")))
pad4 = doc.addObject("PartDesign::Pad", "Pad003")
body.addObject(pad4)
pad4.Profile = sketch4
pad4.Length = 20
pad4.Reversed = True

sketch5 = doc.addObject("Sketcher::SketchObject", "Sketch004")
body.addObject(sketch5)
sketch5.AttachmentSupport = (doc.XZ_Plane, [""])
sketch5.MapMode = "FlatFace"
sketch5.AttachmentOffset = App.Placement(App.Vector(0, 0, -23), App.Rotation())
sketch5.addGeometry(Part.Circle(App.Vector(-42.7, 0, 0), App.Vector(0, 0, 1), 3.5), False)
sketch5.addGeometry(Part.Circle(App.Vector(42.7, 0, 0), App.Vector(0, 0, 1), 3.5), False)
sketch5.addGeometry(Part.Circle(App.Vector(0, -42.7, 0), App.Vector(0, 0, 1), 3.5), False)
sketch5.addConstraint(Sketcher.Constraint("Equal", 0, 1))
sketch5.addConstraint(Sketcher.Constraint("Equal", 1, 2))
sketch5.addConstraint(Sketcher.Constraint("Symmetric", 0, 3, 1, 3, -1, 1))
sketch5.addConstraint(Sketcher.Constraint("PointOnObject", 0, 3, -1))
sketch5.addConstraint(Sketcher.Constraint("PointOnObject", 2, 3, -2))
sketch5.addConstraint(Sketcher.Constraint("Diameter", 0, Q("7 mm")))
sketch5.addConstraint(Sketcher.Constraint("DistanceX", 0, 3, -1, 1, Q("42.673212 mm")))
sketch5.addConstraint(Sketcher.Constraint("DistanceY", 2, 3, -1, 1, Q("42.673212 mm")))
pocket1 = doc.addObject("PartDesign::Pocket", "Pocket")
body.addObject(pocket1)
pocket1.Profile = sketch5
pocket1.Type = "ThroughAll"
pocket1.Reversed = True

sketch6 = doc.addObject("Sketcher::SketchObject", "Sketch005")
body.addObject(sketch6)
sketch6.AttachmentSupport = (doc.XY_Plane, [""])
sketch6.MapMode = "FlatFace"
sketch6.AttachmentOffset = App.Placement(App.Vector(0, 0, -42.673212), App.Rotation())
sketch6.addGeometry(Part.LineSegment(App.Vector(5, 16, 0), App.Vector(6.2, 18, 0)), False)
sketch6.addGeometry(Part.LineSegment(App.Vector(6.2, 18, 0), App.Vector(5, 18, 0)), False)
sketch6.addGeometry(Part.LineSegment(App.Vector(5, 18, 0), App.Vector(5, 16, 0)), False)
sketch6.addConstraint(Sketcher.Constraint("Coincident", 0, 2, 1, 1))
sketch6.addConstraint(Sketcher.Constraint("Coincident", 1, 2, 2, 1))
sketch6.addConstraint(Sketcher.Constraint("Coincident", 2, 2, 0, 1))
sketch6.addConstraint(Sketcher.Constraint("Horizontal", 1))
sketch6.addConstraint(Sketcher.Constraint("Vertical", 2))
sketch6.addConstraint(Sketcher.Constraint("DistanceY", 2, 2, 2, 1, Q("2 mm")))
sketch6.addConstraint(Sketcher.Constraint("Angle", 0, Q("60 deg")))
sketch6.addConstraint(Sketcher.Constraint("DistanceY", -1, 1, 0, 2, Q("18 mm")))
sketch6.addConstraint(Sketcher.Constraint("DistanceX", -1, 1, 1, 2, Q("5 mm")))
revolution = doc.addObject("PartDesign::Revolution", "Revolution")
body.addObject(revolution)
revolution.Profile = sketch6
revolution.ReferenceAxis = (sketch6, ["V_Axis"])
revolution.Angle = 360

doc.recompute()
